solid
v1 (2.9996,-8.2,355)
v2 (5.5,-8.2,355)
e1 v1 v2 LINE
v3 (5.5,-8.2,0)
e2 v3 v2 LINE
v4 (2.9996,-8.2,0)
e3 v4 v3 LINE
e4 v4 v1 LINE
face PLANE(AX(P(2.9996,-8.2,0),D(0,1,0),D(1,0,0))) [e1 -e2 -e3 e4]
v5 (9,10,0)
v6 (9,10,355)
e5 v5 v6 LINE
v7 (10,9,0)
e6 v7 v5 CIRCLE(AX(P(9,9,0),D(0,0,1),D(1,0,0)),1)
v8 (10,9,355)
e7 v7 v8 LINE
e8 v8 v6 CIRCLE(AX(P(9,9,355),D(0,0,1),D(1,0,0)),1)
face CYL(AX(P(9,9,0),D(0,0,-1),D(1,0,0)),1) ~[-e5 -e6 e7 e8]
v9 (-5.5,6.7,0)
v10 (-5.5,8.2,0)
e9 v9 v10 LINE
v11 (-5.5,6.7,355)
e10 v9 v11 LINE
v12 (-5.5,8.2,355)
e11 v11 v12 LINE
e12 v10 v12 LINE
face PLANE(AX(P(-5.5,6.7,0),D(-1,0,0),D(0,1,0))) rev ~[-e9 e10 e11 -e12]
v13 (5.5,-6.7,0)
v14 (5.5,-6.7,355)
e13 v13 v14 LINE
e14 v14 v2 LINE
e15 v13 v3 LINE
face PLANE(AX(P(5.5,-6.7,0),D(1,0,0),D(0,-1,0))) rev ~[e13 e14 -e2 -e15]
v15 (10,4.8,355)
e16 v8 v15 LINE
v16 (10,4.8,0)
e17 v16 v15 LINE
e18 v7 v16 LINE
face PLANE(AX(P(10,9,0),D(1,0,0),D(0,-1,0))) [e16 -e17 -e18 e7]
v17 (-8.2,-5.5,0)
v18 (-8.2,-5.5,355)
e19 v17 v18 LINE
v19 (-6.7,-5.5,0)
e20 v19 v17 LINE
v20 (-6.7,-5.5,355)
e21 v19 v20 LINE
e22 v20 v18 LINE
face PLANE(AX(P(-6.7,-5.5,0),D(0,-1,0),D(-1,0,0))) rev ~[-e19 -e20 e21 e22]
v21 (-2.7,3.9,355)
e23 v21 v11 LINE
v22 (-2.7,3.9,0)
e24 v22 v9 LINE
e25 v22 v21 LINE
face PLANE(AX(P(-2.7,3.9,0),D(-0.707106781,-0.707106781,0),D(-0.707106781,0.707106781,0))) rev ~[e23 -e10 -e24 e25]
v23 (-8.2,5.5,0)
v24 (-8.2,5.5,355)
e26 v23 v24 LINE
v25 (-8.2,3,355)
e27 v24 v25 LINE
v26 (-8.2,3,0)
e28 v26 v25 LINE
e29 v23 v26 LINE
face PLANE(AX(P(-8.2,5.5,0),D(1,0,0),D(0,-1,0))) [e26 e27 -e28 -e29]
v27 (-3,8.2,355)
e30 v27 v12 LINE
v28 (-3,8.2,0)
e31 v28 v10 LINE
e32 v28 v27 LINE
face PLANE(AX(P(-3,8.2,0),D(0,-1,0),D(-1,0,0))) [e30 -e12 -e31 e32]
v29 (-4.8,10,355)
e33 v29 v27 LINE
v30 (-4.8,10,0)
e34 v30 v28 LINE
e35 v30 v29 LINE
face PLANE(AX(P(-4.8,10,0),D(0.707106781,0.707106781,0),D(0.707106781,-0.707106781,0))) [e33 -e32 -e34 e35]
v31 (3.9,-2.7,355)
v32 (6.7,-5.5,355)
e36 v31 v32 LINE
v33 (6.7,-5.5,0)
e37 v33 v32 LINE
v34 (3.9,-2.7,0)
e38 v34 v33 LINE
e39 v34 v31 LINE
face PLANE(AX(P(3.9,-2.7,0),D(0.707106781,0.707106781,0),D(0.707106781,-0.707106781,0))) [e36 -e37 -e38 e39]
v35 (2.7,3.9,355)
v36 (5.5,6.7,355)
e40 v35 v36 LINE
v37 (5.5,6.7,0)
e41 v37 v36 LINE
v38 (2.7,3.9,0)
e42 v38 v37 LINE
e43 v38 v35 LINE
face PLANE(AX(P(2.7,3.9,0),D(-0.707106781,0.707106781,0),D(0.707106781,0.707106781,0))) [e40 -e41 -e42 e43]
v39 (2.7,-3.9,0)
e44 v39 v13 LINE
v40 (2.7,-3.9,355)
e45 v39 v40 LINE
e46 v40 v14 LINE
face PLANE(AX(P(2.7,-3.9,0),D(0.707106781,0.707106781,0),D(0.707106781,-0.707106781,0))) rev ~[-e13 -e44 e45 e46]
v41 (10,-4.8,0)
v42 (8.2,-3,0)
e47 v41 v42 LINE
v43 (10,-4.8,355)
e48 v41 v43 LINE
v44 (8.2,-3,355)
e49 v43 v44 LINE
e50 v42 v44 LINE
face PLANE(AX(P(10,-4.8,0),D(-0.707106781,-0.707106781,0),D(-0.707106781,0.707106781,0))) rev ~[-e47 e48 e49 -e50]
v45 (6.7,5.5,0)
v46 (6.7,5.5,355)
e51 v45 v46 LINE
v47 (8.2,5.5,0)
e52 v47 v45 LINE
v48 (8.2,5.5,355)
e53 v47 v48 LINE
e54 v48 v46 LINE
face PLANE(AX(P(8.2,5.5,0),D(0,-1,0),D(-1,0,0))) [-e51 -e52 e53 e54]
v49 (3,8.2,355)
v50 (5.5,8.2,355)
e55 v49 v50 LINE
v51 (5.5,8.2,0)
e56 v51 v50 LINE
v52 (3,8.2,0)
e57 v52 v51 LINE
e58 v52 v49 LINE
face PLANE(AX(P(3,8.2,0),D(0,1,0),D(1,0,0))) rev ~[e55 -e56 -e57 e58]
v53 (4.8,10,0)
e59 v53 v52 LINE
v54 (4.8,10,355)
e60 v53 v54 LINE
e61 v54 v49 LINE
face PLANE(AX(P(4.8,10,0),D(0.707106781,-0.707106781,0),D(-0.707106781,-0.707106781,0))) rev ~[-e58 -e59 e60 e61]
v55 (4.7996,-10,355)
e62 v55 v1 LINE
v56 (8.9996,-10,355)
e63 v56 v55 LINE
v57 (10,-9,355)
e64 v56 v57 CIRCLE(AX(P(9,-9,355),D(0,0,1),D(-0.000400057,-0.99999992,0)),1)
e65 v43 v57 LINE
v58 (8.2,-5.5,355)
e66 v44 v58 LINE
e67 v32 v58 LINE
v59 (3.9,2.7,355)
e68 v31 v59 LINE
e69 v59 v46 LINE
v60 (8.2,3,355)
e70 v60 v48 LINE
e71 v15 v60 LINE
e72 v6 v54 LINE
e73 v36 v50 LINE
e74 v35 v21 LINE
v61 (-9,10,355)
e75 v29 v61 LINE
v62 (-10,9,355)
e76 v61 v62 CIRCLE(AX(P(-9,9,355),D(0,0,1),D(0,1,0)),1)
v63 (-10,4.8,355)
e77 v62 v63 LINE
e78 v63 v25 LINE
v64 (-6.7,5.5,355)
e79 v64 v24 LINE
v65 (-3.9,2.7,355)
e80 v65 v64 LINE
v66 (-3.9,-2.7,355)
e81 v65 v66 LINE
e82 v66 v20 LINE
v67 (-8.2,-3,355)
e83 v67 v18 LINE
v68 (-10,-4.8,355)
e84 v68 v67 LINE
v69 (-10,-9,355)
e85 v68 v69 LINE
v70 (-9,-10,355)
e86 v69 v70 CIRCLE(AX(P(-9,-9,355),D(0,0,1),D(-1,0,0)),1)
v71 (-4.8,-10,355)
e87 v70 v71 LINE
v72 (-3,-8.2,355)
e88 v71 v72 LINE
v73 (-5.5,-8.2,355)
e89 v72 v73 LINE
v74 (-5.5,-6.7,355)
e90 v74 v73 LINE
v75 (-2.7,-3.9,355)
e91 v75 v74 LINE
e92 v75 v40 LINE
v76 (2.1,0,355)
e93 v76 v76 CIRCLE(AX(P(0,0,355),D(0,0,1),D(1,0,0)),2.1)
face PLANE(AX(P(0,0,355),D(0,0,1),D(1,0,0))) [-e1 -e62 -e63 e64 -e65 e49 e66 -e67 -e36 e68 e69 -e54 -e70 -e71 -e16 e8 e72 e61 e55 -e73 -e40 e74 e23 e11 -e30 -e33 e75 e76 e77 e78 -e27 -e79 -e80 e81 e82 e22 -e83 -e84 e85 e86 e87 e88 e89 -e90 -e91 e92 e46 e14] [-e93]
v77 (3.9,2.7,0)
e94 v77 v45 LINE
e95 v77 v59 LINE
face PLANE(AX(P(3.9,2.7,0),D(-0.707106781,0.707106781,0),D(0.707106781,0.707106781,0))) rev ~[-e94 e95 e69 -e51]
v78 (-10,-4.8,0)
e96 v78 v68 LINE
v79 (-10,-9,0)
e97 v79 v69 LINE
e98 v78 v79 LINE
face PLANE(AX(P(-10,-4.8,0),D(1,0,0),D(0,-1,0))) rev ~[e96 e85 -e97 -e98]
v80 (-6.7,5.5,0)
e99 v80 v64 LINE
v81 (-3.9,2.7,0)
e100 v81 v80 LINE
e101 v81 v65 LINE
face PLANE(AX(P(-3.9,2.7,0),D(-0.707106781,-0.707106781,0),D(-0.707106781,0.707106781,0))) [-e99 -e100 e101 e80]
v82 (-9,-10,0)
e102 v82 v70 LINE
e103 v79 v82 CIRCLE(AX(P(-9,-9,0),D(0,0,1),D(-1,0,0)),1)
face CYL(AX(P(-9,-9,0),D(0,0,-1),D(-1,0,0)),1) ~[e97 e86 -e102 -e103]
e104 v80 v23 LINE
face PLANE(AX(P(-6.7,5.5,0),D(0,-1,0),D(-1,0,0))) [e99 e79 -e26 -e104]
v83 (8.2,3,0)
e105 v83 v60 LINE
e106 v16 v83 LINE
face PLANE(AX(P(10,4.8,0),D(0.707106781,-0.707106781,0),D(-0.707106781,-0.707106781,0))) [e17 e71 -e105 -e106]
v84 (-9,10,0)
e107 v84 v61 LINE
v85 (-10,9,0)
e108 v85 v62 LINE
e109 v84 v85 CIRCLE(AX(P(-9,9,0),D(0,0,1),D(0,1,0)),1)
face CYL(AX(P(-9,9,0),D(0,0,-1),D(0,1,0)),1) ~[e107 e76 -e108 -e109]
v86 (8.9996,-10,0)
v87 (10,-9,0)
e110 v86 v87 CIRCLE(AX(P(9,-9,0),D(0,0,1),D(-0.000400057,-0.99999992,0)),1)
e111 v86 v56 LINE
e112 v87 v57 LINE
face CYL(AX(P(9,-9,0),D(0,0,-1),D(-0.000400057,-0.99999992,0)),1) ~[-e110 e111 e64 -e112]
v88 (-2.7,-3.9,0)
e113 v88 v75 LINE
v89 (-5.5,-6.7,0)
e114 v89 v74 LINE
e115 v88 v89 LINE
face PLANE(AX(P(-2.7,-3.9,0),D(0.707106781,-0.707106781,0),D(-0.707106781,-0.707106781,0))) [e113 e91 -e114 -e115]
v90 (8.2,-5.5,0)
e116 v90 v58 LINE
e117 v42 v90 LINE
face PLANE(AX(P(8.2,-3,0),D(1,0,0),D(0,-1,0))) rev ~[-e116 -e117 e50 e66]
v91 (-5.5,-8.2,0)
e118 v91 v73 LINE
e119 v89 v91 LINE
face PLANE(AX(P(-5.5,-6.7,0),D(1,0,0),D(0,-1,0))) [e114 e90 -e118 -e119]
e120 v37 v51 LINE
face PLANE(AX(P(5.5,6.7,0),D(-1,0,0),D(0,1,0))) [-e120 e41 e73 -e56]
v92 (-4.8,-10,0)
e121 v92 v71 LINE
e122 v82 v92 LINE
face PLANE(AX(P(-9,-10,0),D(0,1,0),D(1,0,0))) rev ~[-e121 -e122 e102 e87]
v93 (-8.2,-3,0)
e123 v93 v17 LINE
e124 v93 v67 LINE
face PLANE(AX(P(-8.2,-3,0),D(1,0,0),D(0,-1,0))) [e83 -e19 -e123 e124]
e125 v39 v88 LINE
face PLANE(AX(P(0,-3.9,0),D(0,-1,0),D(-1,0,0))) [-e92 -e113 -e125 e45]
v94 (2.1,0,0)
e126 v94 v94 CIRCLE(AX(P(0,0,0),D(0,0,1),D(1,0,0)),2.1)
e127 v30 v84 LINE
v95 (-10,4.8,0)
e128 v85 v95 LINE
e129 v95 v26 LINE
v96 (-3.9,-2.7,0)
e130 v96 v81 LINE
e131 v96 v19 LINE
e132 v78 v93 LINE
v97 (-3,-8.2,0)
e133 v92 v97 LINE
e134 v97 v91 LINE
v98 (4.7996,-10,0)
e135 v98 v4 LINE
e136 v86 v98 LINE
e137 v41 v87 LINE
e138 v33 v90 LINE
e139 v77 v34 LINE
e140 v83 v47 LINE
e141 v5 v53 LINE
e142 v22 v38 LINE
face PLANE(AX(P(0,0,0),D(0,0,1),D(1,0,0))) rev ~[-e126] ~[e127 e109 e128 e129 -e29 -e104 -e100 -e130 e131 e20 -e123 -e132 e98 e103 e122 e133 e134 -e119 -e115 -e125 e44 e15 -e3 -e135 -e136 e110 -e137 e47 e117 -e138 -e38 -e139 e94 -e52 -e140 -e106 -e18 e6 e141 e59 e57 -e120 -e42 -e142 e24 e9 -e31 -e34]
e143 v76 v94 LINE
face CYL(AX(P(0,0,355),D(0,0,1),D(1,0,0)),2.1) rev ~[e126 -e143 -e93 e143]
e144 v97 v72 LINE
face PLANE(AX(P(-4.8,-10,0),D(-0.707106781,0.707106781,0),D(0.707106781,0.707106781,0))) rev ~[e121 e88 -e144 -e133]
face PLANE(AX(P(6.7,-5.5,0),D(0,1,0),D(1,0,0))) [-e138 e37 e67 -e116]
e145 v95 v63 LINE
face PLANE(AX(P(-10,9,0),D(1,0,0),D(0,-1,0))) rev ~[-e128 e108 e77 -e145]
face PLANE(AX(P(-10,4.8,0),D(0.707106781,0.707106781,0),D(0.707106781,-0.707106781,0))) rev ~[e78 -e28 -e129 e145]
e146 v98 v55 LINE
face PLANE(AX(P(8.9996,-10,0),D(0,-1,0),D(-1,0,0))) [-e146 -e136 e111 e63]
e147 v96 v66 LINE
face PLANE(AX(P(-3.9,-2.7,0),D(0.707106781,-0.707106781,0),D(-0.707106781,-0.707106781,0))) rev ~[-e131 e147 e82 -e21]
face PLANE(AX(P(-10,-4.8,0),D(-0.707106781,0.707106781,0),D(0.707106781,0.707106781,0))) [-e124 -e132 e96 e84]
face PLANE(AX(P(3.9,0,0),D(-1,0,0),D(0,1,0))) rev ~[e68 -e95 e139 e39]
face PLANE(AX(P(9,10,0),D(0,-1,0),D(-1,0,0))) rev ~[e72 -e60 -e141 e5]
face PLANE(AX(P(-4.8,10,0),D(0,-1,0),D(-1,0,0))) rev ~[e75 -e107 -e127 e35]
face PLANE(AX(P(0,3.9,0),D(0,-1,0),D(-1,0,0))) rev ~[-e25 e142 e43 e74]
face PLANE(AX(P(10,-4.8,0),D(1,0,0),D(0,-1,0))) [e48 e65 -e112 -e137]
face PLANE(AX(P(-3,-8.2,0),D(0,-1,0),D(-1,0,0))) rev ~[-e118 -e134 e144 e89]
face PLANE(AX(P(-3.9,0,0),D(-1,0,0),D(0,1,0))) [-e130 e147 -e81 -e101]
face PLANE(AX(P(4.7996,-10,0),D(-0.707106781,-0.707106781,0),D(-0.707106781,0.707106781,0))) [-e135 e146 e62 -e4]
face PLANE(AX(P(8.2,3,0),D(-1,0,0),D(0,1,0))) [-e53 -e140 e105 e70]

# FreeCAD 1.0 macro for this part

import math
import FreeCAD as App
import Part
import Sketcher
from FreeCAD import Vector

doc = App.newDocument("Part")
body = doc.addObject("PartDesign::Body", "Body")

# Sketch on XY plane
sketch1 = body.newObject("Sketcher::SketchObject", "Sketch")
sketch1.AttachmentSupport = (doc.getObject("XY_Plane"), [""])
sketch1.MapMode = "FlatFace"
sketch1.addGeometry([
    Part.LineSegment(Vector(-3, 8.2, 0), Vector(-4.8, 10, 0)),  # 0
    Part.LineSegment(Vector(-4.8, 10, 0), Vector(-9, 10, 0)),  # 1
    Part.ArcOfCircle(Part.Circle(Vector(-9, 9, 0), Vector(0, 0, 1), 1), math.radians(90), math.radians(180)),  # 2
    Part.LineSegment(Vector(-10, 9, 0), Vector(-10, 4.8, 0)),  # 3
    Part.LineSegment(Vector(-10, 4.8, 0), Vector(-8.2, 3, 0)),  # 4
    Part.LineSegment(Vector(-8.2, 3, 0), Vector(-8.2, 5.5, 0)),  # 5
    Part.LineSegment(Vector(-8.2, 5.5, 0), Vector(-6.7, 5.5, 0)),  # 6
    Part.LineSegment(Vector(-6.7, 5.5, 0), Vector(-3.9, 2.7, 0)),  # 7
    Part.LineSegment(Vector(-3.9, 2.7, 0), Vector(-3.9, -2.7, 0)),  # 8
    Part.LineSegment(Vector(-3.9, -2.7, 0), Vector(-6.7, -5.5, 0)),  # 9
    Part.LineSegment(Vector(-6.7, -5.5, 0), Vector(-8.2, -5.5, 0)),  # 10
    Part.LineSegment(Vector(-8.2, -5.5, 0), Vector(-8.2, -3, 0)),  # 11
    Part.LineSegment(Vector(-8.2, -3, 0), Vector(-10, -4.8, 0)),  # 12
    Part.LineSegment(Vector(-10, -4.8, 0), Vector(-10, -9, 0)),  # 13
    Part.ArcOfCircle(Part.Circle(Vector(-9, -9, 0), Vector(0, 0, 1), 1), math.radians(180), math.radians(270)),  # 14
    Part.LineSegment(Vector(-9, -10, 0), Vector(-4.8, -10, 0)),  # 15
    Part.LineSegment(Vector(-4.8, -10, 0), Vector(-3, -8.2, 0)),  # 16
    Part.LineSegment(Vector(-3, -8.2, 0), Vector(-5.5, -8.2, 0)),  # 17
    Part.LineSegment(Vector(-5.5, -8.2, 0), Vector(-5.5, -6.7, 0)),  # 18
    Part.LineSegment(Vector(-5.5, -6.7, 0), Vector(-2.7, -3.9, 0)),  # 19
    Part.LineSegment(Vector(-2.7, -3.9, 0), Vector(2.7, -3.9, 0)),  # 20
    Part.LineSegment(Vector(2.7, -3.9, 0), Vector(5.5, -6.7, 0)),  # 21
    Part.LineSegment(Vector(5.5, -6.7, 0), Vector(5.5, -8.2, 0)),  # 22
    Part.LineSegment(Vector(5.5, -8.2, 0), Vector(2.9996, -8.2, 0)),  # 23
    Part.LineSegment(Vector(2.9996, -8.2, 0), Vector(4.7996, -10, 0)),  # 24
    Part.LineSegment(Vector(4.7996, -10, 0), Vector(8.9996, -10, 0)),  # 25
    Part.ArcOfCircle(Part.Circle(Vector(9, -9, 0), Vector(0, 0, 1), 1), math.radians(-90.022918), math.radians(0)),  # 26
    Part.LineSegment(Vector(10, -9, 0), Vector(10, -4.8, 0)),  # 27
    Part.LineSegment(Vector(10, -4.8, 0), Vector(8.2, -3, 0)),  # 28
    Part.LineSegment(Vector(8.2, -3, 0), Vector(8.2, -5.5, 0)),  # 29
    Part.LineSegment(Vector(8.2, -5.5, 0), Vector(6.7, -5.5, 0)),  # 30
    Part.LineSegment(Vector(6.7, -5.5, 0), Vector(3.9, -2.7, 0)),  # 31
    Part.LineSegment(Vector(3.9, -2.7, 0), Vector(3.9, 2.7, 0)),  # 32
    Part.LineSegment(Vector(3.9, 2.7, 0), Vector(6.7, 5.5, 0)),  # 33
    Part.LineSegment(Vector(6.7, 5.5, 0), Vector(8.2, 5.5, 0)),  # 34
    Part.LineSegment(Vector(8.2, 5.5, 0), Vector(8.2, 3, 0)),  # 35
    Part.LineSegment(Vector(8.2, 3, 0), Vector(10, 4.8, 0)),  # 36
    Part.LineSegment(Vector(10, 4.8, 0), Vector(10, 9, 0)),  # 37
    Part.ArcOfCircle(Part.Circle(Vector(9, 9, 0), Vector(0, 0, 1), 1), math.radians(0), math.radians(90)),  # 38
    Part.LineSegment(Vector(9, 10, 0), Vector(4.8, 10, 0)),  # 39
    Part.LineSegment(Vector(4.8, 10, 0), Vector(3, 8.2, 0)),  # 40
    Part.LineSegment(Vector(3, 8.2, 0), Vector(5.5, 8.2, 0)),  # 41
    Part.LineSegment(Vector(5.5, 8.2, 0), Vector(5.5, 6.7, 0)),  # 42
    Part.LineSegment(Vector(5.5, 6.7, 0), Vector(2.7, 3.9, 0)),  # 43
    Part.LineSegment(Vector(2.7, 3.9, 0), Vector(-2.7, 3.9, 0)),  # 44
    Part.LineSegment(Vector(-2.7, 3.9, 0), Vector(-5.5, 6.7, 0)),  # 45
    Part.LineSegment(Vector(-5.5, 6.7, 0), Vector(-5.5, 8.2, 0)),  # 46
    Part.LineSegment(Vector(-5.5, 8.2, 0), Vector(-3, 8.2, 0)),  # 47
], False)
sketch1.addConstraint([
    Sketcher.Constraint("Coincident", 0, 2, 1, 1),
    Sketcher.Constraint("Tangent", 1, 2, 2, 1),
    Sketcher.Constraint("Tangent", 2, 2, 3, 1),
    Sketcher.Constraint("Coincident", 3, 2, 4, 1),
    Sketcher.Constraint("Coincident", 4, 2, 5, 1),
    Sketcher.Constraint("Coincident", 5, 2, 6, 1),
    Sketcher.Constraint("Coincident", 6, 2, 7, 1),
    Sketcher.Constraint("Coincident", 7, 2, 8, 1),
    Sketcher.Constraint("Coincident", 8, 2, 9, 1),
    Sketcher.Constraint("Coincident", 9, 2, 10, 1),
    Sketcher.Constraint("Coincident", 10, 2, 11, 1),
    Sketcher.Constraint("Coincident", 11, 2, 12, 1),
    Sketcher.Constraint("Coincident", 12, 2, 13, 1),
    Sketcher.Constraint("Tangent", 13, 2, 14, 1),
    Sketcher.Constraint("Tangent", 14, 2, 15, 1),
    Sketcher.Constraint("Coincident", 15, 2, 16, 1),
    Sketcher.Constraint("Coincident", 16, 2, 17, 1),
    Sketcher.Constraint("Coincident", 17, 2, 18, 1),
    Sketcher.Constraint("Coincident", 18, 2, 19, 1),
    Sketcher.Constraint("Coincident", 19, 2, 20, 1),
    Sketcher.Constraint("Coincident", 20, 2, 21, 1),
    Sketcher.Constraint("Coincident", 21, 2, 22, 1),
    Sketcher.Constraint("Coincident", 22, 2, 23, 1),
    Sketcher.Constraint("Coincident", 23, 2, 24, 1),
    Sketcher.Constraint("Coincident", 24, 2, 25, 1),
    Sketcher.Constraint("Tangent", 25, 2, 26, 1),
    Sketcher.Constraint("Tangent", 26, 2, 27, 1),
    Sketcher.Constraint("Coincident", 27, 2, 28, 1),
    Sketcher.Constraint("Coincident", 28, 2, 29, 1),
    Sketcher.Constraint("Coincident", 29, 2, 30, 1),
    Sketcher.Constraint("Coincident", 30, 2, 31, 1),
    Sketcher.Constraint("Coincident", 31, 2, 32, 1),
    Sketcher.Constraint("Coincident", 32, 2, 33, 1),
    Sketcher.Constraint("Coincident", 33, 2, 34, 1),
    Sketcher.Constraint("Coincident", 34, 2, 35, 1),
    Sketcher.Constraint("Coincident", 35, 2, 36, 1),
    Sketcher.Constraint("Coincident", 36, 2, 37, 1),
    Sketcher.Constraint("Tangent", 37, 2, 38, 1),
    Sketcher.Constraint("Tangent", 38, 2, 39, 1),
    Sketcher.Constraint("Coincident", 39, 2, 40, 1),
    Sketcher.Constraint("Coincident", 40, 2, 41, 1),
    Sketcher.Constraint("Coincident", 41, 2, 42, 1),
    Sketcher.Constraint("Coincident", 42, 2, 43, 1),
    Sketcher.Constraint("Coincident", 43, 2, 44, 1),
    Sketcher.Constraint("Coincident", 44, 2, 45, 1),
    Sketcher.Constraint("Coincident", 45, 2, 46, 1),
    Sketcher.Constraint("Coincident", 46, 2, 47, 1),
    Sketcher.Constraint("Coincident", 47, 2, 0, 1),
    Sketcher.Constraint("Horizontal", 1),
    Sketcher.Constraint("Vertical", 3),
    Sketcher.Constraint("Vertical", 5),
    Sketcher.Constraint("Horizontal", 6),
    Sketcher.Constraint("Vertical", 8),
    Sketcher.Constraint("Horizontal", 10),
    Sketcher.Constraint("Vertical", 11),
    Sketcher.Constraint("Vertical", 13),
    Sketcher.Constraint("Horizontal", 15),
    Sketcher.Constraint("Horizontal", 17),
    Sketcher.Constraint("Vertical", 18),
    Sketcher.Constraint("Horizontal", 20),
    Sketcher.Constraint("Vertical", 22),
    Sketcher.Constraint("Horizontal", 23),
    Sketcher.Constraint("Horizontal", 25),
    Sketcher.Constraint("Vertical", 27),
    Sketcher.Constraint("Vertical", 29),
    Sketcher.Constraint("Horizontal", 30),
    Sketcher.Constraint("Vertical", 32),
    Sketcher.Constraint("Horizontal", 34),
    Sketcher.Constraint("Vertical", 35),
    Sketcher.Constraint("Vertical", 37),
    Sketcher.Constraint("Horizontal", 39),
    Sketcher.Constraint("Horizontal", 41),
    Sketcher.Constraint("Vertical", 42),
    Sketcher.Constraint("Horizontal", 44),
    Sketcher.Constraint("Vertical", 46),
    Sketcher.Constraint("Horizontal", 47),
    Sketcher.Constraint("Equal", 2, 14),
    Sketcher.Constraint("Equal", 14, 26),
    Sketcher.Constraint("Equal", 26, 38),
    Sketcher.Constraint("Symmetric", 2, 3, 26, 3, -1, 1),
    Sketcher.Constraint("Symmetric", 14, 3, 38, 3, -1, 1),
    Sketcher.Constraint("Symmetric", 4, 2, 28, 2, -1, 1),
    Sketcher.Constraint("Symmetric", 6, 2, 30, 2, -1, 1),
    Sketcher.Constraint("Symmetric", 7, 2, 31, 2, -1, 1),
    Sketcher.Constraint("Symmetric", 9, 2, 33, 2, -1, 1),
    Sketcher.Constraint("Symmetric", 11, 2, 35, 2, -1, 1),
    Sketcher.Constraint("Symmetric", 16, 2, 40, 2, -1, 1),
    Sketcher.Constraint("Symmetric", 18, 2, 42, 2, -1, 1),
    Sketcher.Constraint("Symmetric", 19, 2, 43, 2, -1, 1),
    Sketcher.Constraint("Symmetric", 21, 2, 45, 2, -1, 1),
    Sketcher.Constraint("Symmetric", 23, 2, 47, 2, -1, 1),
    Sketcher.Constraint("Symmetric", 14, 3, 26, 3, -2),
    Sketcher.Constraint("Symmetric", 18, 2, 21, 2, -2),
    Sketcher.Constraint("Symmetric", 16, 2, 23, 2, -2),
    Sketcher.Constraint("Symmetric", 11, 2, 28, 2, -2),
    Sketcher.Constraint("Symmetric", 9, 2, 30, 2, -2),
    Sketcher.Constraint("Parallel", 0, 4),
    Sketcher.Constraint("Parallel", 4, 7),
    Sketcher.Constraint("Perpendicular", 7, 9),
    Sketcher.Constraint("Parallel", 9, 12),
    Sketcher.Constraint("Parallel", 12, 16),
    Sketcher.Constraint("Parallel", 16, 19),
    Sketcher.Constraint("Perpendicular", 19, 21),
    Sketcher.Constraint("Parallel", 21, 24),
    Sketcher.Constraint("Parallel", 24, 28),
    Sketcher.Constraint("Perpendicular", 31, 33),
    Sketcher.Constraint("Parallel", 33, 36),
    Sketcher.Constraint("Parallel", 36, 40),
    Sketcher.Constraint("Perpendicular", 43, 45),
    Sketcher.Constraint("Horizontal", 12, 2, 27, 2),
    Sketcher.Constraint("Equal", 39, 3),
    Sketcher.Constraint("Equal", 47, 5),
    Sketcher.Constraint("Equal", 44, 8),
    Sketcher.Constraint("Equal", 34, 18),
    Sketcher.Constraint("Equal", 0, 4),
    Sketcher.Constraint("Equal", 9, 19),
    Sketcher.Constraint("Radius", 2, 1.0),
    Sketcher.Constraint("DistanceX", 1, 2, 1, 1, 4.2),
    Sketcher.Constraint("DistanceX", 6, 1, 6, 2, 1.5),
    Sketcher.Constraint("DistanceX", 17, 2, 17, 1, 2.5),
    Sketcher.Constraint("DistanceX", 2, 3, -1, 1, 9.0),
    Sketcher.Constraint("DistanceY", 4, 2, 2, 3, 6.0),
    Sketcher.Constraint("DistanceX", 7, 2, -1, 1, 3.9),
])
pad1 = body.newObject("PartDesign::Pad", "Pad")
pad1.Profile = sketch1
pad1.Length = 355

# Sketch on XY plane
sketch2 = body.newObject("Sketcher::SketchObject", "Sketch001")
sketch2.AttachmentSupport = (doc.getObject("XY_Plane"), [""])
sketch2.MapMode = "FlatFace"
sketch2.AttachmentOffset = App.Placement(Vector(0, 0, 355), App.Rotation())
sketch2.addGeometry(Part.Circle(Vector(0, 0, 0), Vector(0, 0, 1), 2.1), False)
sketch2.addConstraint([
    Sketcher.Constraint("Coincident", 0, 3, -1, 1),
    Sketcher.Constraint("Diameter", 0, 4.2),
])
pocket1 = body.newObject("PartDesign::Pocket", "Pocket")
pocket1.Profile = sketch2
pocket1.Type = "ThroughAll"

doc.recompute()
